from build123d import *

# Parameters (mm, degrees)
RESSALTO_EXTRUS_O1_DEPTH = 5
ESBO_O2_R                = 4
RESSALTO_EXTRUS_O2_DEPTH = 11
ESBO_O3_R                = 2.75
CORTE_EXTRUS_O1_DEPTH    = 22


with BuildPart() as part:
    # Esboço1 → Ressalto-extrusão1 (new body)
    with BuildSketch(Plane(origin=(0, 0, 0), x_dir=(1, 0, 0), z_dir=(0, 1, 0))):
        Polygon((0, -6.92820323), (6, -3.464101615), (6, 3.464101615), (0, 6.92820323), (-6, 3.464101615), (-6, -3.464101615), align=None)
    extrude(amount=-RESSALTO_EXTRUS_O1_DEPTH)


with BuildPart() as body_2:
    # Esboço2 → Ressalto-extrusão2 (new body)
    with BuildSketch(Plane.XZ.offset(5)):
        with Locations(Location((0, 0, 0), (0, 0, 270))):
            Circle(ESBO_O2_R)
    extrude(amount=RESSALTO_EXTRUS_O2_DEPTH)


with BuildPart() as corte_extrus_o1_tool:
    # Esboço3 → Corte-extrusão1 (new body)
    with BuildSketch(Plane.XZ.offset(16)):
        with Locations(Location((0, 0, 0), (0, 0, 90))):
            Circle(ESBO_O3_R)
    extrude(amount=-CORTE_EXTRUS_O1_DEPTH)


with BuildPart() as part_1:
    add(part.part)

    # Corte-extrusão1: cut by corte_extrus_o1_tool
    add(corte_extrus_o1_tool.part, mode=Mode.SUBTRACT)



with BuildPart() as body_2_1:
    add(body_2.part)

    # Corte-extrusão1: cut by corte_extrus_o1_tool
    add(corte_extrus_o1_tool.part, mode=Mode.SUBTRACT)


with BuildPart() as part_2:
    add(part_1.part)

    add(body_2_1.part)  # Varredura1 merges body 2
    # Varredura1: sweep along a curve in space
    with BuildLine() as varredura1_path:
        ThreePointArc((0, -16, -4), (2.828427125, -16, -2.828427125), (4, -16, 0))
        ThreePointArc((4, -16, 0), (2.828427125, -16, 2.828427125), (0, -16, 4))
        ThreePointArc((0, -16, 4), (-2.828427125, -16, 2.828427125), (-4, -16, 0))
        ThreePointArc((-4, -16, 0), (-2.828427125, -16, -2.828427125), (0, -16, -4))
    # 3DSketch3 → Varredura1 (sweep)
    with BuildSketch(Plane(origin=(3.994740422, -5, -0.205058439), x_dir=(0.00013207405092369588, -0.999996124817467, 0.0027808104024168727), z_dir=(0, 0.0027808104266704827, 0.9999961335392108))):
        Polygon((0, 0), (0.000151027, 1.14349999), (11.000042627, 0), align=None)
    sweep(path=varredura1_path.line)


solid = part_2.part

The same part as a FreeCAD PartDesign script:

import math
import FreeCAD as App
import Part
import Sketcher
from FreeCAD import Vector
Q = App.Units.Quantity

doc = App.newDocument("Part")
body = doc.addObject("PartDesign::Body", "Body")

# Sketch on XZ plane
sketch1 = doc.addObject("Sketcher::SketchObject", "Sketch")
body.addObject(sketch1)
sketch1.AttachmentSupport = (doc.XZ_Plane, [""])
sketch1.MapMode = "FlatFace"
sketch1.addGeometry(Part.LineSegment(Vector(0, 7, 0), Vector(6, 3, 0)), False)
sketch1.addGeometry(Part.LineSegment(Vector(6, 3, 0), Vector(6, -3, 0)), False)
sketch1.addGeometry(Part.LineSegment(Vector(6, -3, 0), Vector(0, -7, 0)), False)
sketch1.addGeometry(Part.LineSegment(Vector(0, -7, 0), Vector(-6, -3, 0)), False)
sketch1.addGeometry(Part.LineSegment(Vector(-6, -3, 0), Vector(-6, 3, 0)), False)
sketch1.addGeometry(Part.LineSegment(Vector(-6, 3, 0), Vector(0, 7, 0)), False)
sketch1.addConstraint(Sketcher.Constraint("Coincident", 0, 2, 1, 1))
sketch1.addConstraint(Sketcher.Constraint("Coincident", 1, 2, 2, 1))
sketch1.addConstraint(Sketcher.Constraint("Coincident", 2, 2, 3, 1))
sketch1.addConstraint(Sketcher.Constraint("Coincident", 3, 2, 4, 1))
sketch1.addConstraint(Sketcher.Constraint("Coincident", 4, 2, 5, 1))
sketch1.addConstraint(Sketcher.Constraint("Coincident", 5, 2, 0, 1))
sketch1.addConstraint(Sketcher.Constraint("Vertical", 1))
sketch1.addConstraint(Sketcher.Constraint("Vertical", 4))
sketch1.addConstraint(Sketcher.Constraint("Symmetric", 0, 2, 3, 2, -1, 1))
sketch1.addConstraint(Sketcher.Constraint("Symmetric", 2, 2, 5, 2, -1, 1))
sketch1.addConstraint(Sketcher.Constraint("PointOnObject", 2, 2, -2))
sketch1.addConstraint(Sketcher.Constraint("Parallel", 2, 5))
sketch1.addConstraint(Sketcher.Constraint("Horizontal", 1, 2, 3, 2))
sketch1.addConstraint(Sketcher.Constraint("Angle", 0, Q("-30 deg")))
sketch1.addConstraint(Sketcher.Constraint("DistanceX", -1, 1, 0, 2, 6.0))
sketch1.addConstraint(Sketcher.Constraint("DistanceY", -1, 1, 0, 2, 3.464102))
pad1 = doc.addObject("PartDesign::Pad", "Pad")
body.addObject(pad1)
pad1.Profile = sketch1
pad1.Length = 5
body2 = doc.addObject("PartDesign::Body", "Body001")

# Sketch on XZ plane
sketch2 = doc.addObject("Sketcher::SketchObject", "Sketch001")
body2.addObject(sketch2)
sketch2.AttachmentSupport = (doc.getObject("XZ_Plane001"), [""])
sketch2.MapMode = "FlatFace"
sketch2.AttachmentOffset = App.Placement(Vector(0, 0, 5), App.Rotation())
sketch2.addGeometry(Part.Circle(Vector(0, 0, 0), Vector(0, 0, 1), 4), False)
sketch2.addConstraint(Sketcher.Constraint("Coincident", 0, 3, -1, 1))
sketch2.addConstraint(Sketcher.Constraint("Diameter", 0, 8.0))
pad2 = doc.addObject("PartDesign::Pad", "Pad001")
body2.addObject(pad2)
pad2.Profile = sketch2
pad2.Length = 11
body3 = doc.addObject("PartDesign::Body", "Body002")

# Sketch on XZ plane
sketch3 = doc.addObject("Sketcher::SketchObject", "Sketch002")
body3.addObject(sketch3)
sketch3.AttachmentSupport = (doc.getObject("XZ_Plane002"), [""])
sketch3.MapMode = "FlatFace"
sketch3.AttachmentOffset = App.Placement(Vector(0, 0, 16), App.Rotation())
sketch3.addGeometry(Part.Circle(Vector(0, 0, 0), Vector(0, 0, 1), 2.8), False)
sketch3.addConstraint(Sketcher.Constraint("Coincident", 0, 3, -1, 1))
sketch3.addConstraint(Sketcher.Constraint("Diameter", 0, 5.5))
pad3 = doc.addObject("PartDesign::Pad", "Pad002")
body3.addObject(pad3)
pad3.Profile = sketch3
pad3.Length = 22
pad3.Reversed = True
doc.recompute()

body4 = doc.addObject("PartDesign::Body", "Body003")
body4.BaseFeature = body3
boolean = doc.addObject("PartDesign::Boolean", "Boolean")
body.addObject(boolean)
boolean.Type = "Cut"
boolean.addObjects([body4])
doc.recompute()

boolean2 = doc.addObject("PartDesign::Boolean", "Boolean001")
body2.addObject(boolean2)
boolean2.Type = "Cut"
boolean2.addObjects([body3])
doc.recompute()

boolean3 = doc.addObject("PartDesign::Boolean", "Boolean002")
body.addObject(boolean3)
boolean3.Type = "Fuse"
boolean3.addObjects([body2])

# Sketch on an angled plane
sketch4 = doc.addObject("Sketcher::SketchObject", "Sketch003")
body.addObject(sketch4)
sketch4.Placement = App.Placement(Vector(3.99474, -5, -0.205058), App.Rotation(Vector(0.000132074, -0.999996125, 0.00278081), Vector(0.999999992, 0.000132073, -0.000000367), Vector(0, 0.00278081, 0.999996134), "ZXY"))
sketch4.addGeometry(Part.LineSegment(Vector(0, 1.1, 0), Vector(0, 0, 0)), False)
sketch4.addGeometry(Part.LineSegment(Vector(0, 0, 0), Vector(11, 0, 0)), False)
sketch4.addGeometry(Part.LineSegment(Vector(11, 0, 0), Vector(0, 1.1, 0)), False)
sketch4.addConstraint(Sketcher.Constraint("Coincident", 0, 2, 1, 1))
sketch4.addConstraint(Sketcher.Constraint("Coincident", 1, 2, 2, 1))
sketch4.addConstraint(Sketcher.Constraint("Coincident", 2, 2, 0, 1))
sketch4.addConstraint(Sketcher.Constraint("Horizontal", 1))
sketch4.addConstraint(Sketcher.Constraint("Coincident", 0, 2, -1, 1))
sketch4.addConstraint(Sketcher.Constraint("Distance", 0, 1.1435))
sketch4.addConstraint(Sketcher.Constraint("Distance", 2, 11.059168))
sketch4.addConstraint(Sketcher.Constraint("DistanceX", 1, 1, 1, 2, 11.000043))

# Sketch on XZ plane
sketch5 = doc.addObject("Sketcher::SketchObject", "Sketch004")
body.addObject(sketch5)
sketch5.AttachmentSupport = (doc.XZ_Plane, [""])
sketch5.MapMode = "FlatFace"
sketch5.AttachmentOffset = App.Placement(Vector(0, 0, 16), App.Rotation())
sketch5.addGeometry(Part.ArcOfCircle(Part.Circle(Vector(0, 0, 0), Vector(0, 0, 1), 4), math.radians(-90), math.radians(0)), False)
sketch5.addGeometry(Part.ArcOfCircle(Part.Circle(Vector(0, 0, 0), Vector(0, 0, 1), 4), math.radians(0), math.radians(90)), False)
sketch5.addGeometry(Part.ArcOfCircle(Part.Circle(Vector(0, 0, 0), Vector(0, 0, 1), 4), math.radians(90), math.radians(180)), False)
sketch5.addGeometry(Part.ArcOfCircle(Part.Circle(Vector(0, 0, 0), Vector(0, 0, 1), 4), math.radians(180), math.radians(270)), False)
sketch5.addConstraint(Sketcher.Constraint("Tangent", 0, 2, 1, 1))
sketch5.addConstraint(Sketcher.Constraint("Tangent", 1, 2, 2, 1))
sketch5.addConstraint(Sketcher.Constraint("Tangent", 2, 2, 3, 1))
sketch5.addConstraint(Sketcher.Constraint("Tangent", 3, 2, 0, 1))
sketch5.addConstraint(Sketcher.Constraint("Coincident", 0, 3, -1, 1))
sketch5.addConstraint(Sketcher.Constraint("Equal", 0, 1))
sketch5.addConstraint(Sketcher.Constraint("PointOnObject", 0, 2, -1))
sketch5.addConstraint(Sketcher.Constraint("PointOnObject", 1, 2, -2))
sketch5.addConstraint(Sketcher.Constraint("PointOnObject", 2, 2, -1))
sketch5.addConstraint(Sketcher.Constraint("PointOnObject", 3, 2, -2))
sketch5.addConstraint(Sketcher.Constraint("Radius", 0, 4.0))
doc.recompute()

additivepipe = doc.addObject("PartDesign::AdditivePipe", "AdditivePipe")
body.addObject(additivepipe)
additivepipe.Profile = sketch4
additivepipe.Spine = (sketch5, ["Edge1", "Edge2", "Edge3", "Edge4"])

doc.recompute()
